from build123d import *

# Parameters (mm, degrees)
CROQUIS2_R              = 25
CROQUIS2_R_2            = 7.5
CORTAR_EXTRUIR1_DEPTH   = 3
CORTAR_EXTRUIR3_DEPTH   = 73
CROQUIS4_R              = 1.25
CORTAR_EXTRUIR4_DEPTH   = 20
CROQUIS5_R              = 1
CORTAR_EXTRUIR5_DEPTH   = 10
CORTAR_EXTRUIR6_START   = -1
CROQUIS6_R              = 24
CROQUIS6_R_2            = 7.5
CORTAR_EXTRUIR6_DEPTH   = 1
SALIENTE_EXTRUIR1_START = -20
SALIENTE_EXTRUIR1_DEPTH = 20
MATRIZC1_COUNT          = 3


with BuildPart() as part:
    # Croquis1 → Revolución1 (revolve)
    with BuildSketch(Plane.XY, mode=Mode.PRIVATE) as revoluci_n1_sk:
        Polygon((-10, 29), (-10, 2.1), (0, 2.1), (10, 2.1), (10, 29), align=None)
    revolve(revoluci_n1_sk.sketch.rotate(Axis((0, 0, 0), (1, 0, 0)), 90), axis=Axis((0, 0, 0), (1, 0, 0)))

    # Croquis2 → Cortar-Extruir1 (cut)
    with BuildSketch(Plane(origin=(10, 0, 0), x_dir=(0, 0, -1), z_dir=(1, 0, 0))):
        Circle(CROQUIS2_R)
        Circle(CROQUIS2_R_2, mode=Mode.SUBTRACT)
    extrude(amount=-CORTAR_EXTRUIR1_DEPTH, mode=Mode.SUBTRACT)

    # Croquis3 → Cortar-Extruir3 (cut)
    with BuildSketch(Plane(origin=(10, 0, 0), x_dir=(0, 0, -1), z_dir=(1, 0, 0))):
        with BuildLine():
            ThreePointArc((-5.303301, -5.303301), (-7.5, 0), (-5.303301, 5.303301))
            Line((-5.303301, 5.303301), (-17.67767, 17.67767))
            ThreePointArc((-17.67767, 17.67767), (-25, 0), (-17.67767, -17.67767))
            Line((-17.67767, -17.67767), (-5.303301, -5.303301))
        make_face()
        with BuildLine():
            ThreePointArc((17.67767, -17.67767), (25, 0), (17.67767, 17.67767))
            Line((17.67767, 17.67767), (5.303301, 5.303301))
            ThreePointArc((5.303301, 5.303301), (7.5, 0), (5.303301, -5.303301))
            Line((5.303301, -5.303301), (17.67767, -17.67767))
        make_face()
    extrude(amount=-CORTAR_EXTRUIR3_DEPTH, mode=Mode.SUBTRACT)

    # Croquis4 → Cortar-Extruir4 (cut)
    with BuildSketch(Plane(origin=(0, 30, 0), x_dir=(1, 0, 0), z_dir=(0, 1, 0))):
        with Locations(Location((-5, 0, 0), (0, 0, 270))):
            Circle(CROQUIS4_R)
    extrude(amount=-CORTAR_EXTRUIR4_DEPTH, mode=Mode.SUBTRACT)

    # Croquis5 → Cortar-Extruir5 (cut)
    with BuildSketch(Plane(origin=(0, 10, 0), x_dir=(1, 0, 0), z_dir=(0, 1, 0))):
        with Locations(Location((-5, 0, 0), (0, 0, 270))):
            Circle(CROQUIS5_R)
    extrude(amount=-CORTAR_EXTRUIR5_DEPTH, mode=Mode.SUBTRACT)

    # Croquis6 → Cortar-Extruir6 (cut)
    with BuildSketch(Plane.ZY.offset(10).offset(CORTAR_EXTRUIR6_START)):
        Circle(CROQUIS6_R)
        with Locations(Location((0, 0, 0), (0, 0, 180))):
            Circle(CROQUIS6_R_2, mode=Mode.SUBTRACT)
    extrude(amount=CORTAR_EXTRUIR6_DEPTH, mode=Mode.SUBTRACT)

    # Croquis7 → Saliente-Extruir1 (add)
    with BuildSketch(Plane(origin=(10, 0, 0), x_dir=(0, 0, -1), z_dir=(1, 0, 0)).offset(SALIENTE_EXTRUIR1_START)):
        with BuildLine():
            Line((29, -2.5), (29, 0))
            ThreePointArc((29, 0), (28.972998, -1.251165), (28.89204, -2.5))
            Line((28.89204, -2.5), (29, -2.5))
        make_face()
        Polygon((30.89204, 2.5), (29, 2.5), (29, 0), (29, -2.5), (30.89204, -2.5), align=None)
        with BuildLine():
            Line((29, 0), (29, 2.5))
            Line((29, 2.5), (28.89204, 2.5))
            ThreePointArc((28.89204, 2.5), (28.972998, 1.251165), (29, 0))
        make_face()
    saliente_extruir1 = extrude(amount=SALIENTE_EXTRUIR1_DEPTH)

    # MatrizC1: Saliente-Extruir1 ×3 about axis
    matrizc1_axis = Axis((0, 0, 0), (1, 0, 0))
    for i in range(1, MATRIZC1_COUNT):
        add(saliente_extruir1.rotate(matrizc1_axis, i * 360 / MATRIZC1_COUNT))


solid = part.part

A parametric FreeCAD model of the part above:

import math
import FreeCAD as App
import Part
import Sketcher


def add_polygon(sketch, points):
    """Adds a closed chain of lines whose ends are joined by coincident constraints."""
    first, n = sketch.GeometryCount, len(points)
    for a, b in zip(points, points[1:] + points[:1]):
        sketch.addGeometry(Part.LineSegment(App.Vector(*a, 0), App.Vector(*b, 0)), False)
    for i in range(n):
        sketch.addConstraint(Sketcher.Constraint("Coincident", first + i, 2, first + (i + 1) % n, 1))

doc = App.newDocument("Part")
params = doc.addObject("Spreadsheet::Sheet", "Params")
for row, (alias, value) in enumerate([
    ("sketch1_width", "20 mm"),
    ("sketch1_height", "26.9 mm"),
    ("revolution_angle", "360 deg"),
    ("sketch2_diameter", "50 mm"),
    ("sketch2_diameter2", "15 mm"),
    ("pocket1_length", "3 mm"),
    ("sketch3_radius", "7.500001 mm"),
    ("sketch3_length", "17.5 mm"),
    ("pocket2_length", "73 mm"),
    ("sketch4_diameter", "2.5 mm"),
    ("pocket3_length", "20 mm"),
    ("sketch5_diameter", "2 mm"),
    ("pocket4_length", "10 mm"),
    ("sketch6_diameter", "48 mm"),
    ("sketch6_diameter2", "15 mm"),
    ("pocket5_length", "1 mm"),
    ("sketch7_width", "5 mm"),
    ("sketch7_height", "2 mm"),
    ("sketch7_height2", "2 mm"),
    ("pad1_length", "20 mm"),
], start=1):
    params.set(f"A{row}", alias)
    params.set(f"B{row}", "=" + value)
    params.setAlias(f"B{row}", alias)

body = doc.addObject("PartDesign::Body", "Body")

sketch1 = body.newObject("Sketcher::SketchObject", "Sketch")
sketch1.AttachmentSupport = (doc.getObject("XY_Plane"), [""])
sketch1.MapMode = "FlatFace"
add_polygon(sketch1, [(-10, 29), (-10, 2), (10, 2), (10, 29)])
sketch1.addConstraint(Sketcher.Constraint("Vertical", 0))
sketch1.addConstraint(Sketcher.Constraint("Horizontal", 1))
sketch1.addConstraint(Sketcher.Constraint("Vertical", 2))
sketch1.addConstraint(Sketcher.Constraint("Horizontal", 3))
sketch1.addConstraint(Sketcher.Constraint("DistanceX", 1, 1, 1, 2, 20.0))
sketch1.addConstraint(Sketcher.Constraint("DistanceY", 0, 2, 0, 1, 26.9))
sketch1.addConstraint(Sketcher.Constraint("DistanceX", 0, 2, -1, 1, 10.0))
sketch1.addConstraint(Sketcher.Constraint("DistanceY", -1, 1, 2, 2, 29.0))
sketch1.setExpression("Constraints[8]", "Params.sketch1_width")
sketch1.setExpression("Constraints[9]", "Params.sketch1_height")
revolution = body.newObject("PartDesign::Revolution", "Revolution")
revolution.Profile = sketch1
revolution.ReferenceAxis = (sketch1, ["H_Axis"])
revolution.setExpression("Angle", "Params.revolution_angle")

sketch2 = body.newObject("Sketcher::SketchObject", "Sketch001")
sketch2.AttachmentSupport = (doc.getObject("YZ_Plane"), [""])
sketch2.MapMode = "FlatFace"
sketch2.AttachmentOffset = App.Placement(App.Vector(0, 0, 10), App.Rotation())
sketch2.addGeometry(Part.Circle(App.Vector(0, 0, 0), App.Vector(0, 0, 1), 25), False)
sketch2.addGeometry(Part.Circle(App.Vector(0, 0, 0), App.Vector(0, 0, 1), 8), False)
sketch2.addConstraint(Sketcher.Constraint("Coincident", 0, 3, -1, 1))
sketch2.addConstraint(Sketcher.Constraint("Coincident", 1, 3, -1, 1))
sketch2.addConstraint(Sketcher.Constraint("Diameter", 0, 50.0))
sketch2.addConstraint(Sketcher.Constraint("Diameter", 1, 15.0))
sketch2.setExpression("Constraints[2]", "Params.sketch2_diameter")
sketch2.setExpression("Constraints[3]", "Params.sketch2_diameter2")
pocket1 = body.newObject("PartDesign::Pocket", "Pocket")
pocket1.Profile = sketch2
pocket1.setExpression("Length", "Params.pocket1_length")

sketch3 = body.newObject("Sketcher::SketchObject", "Sketch002")
sketch3.AttachmentSupport = (doc.getObject("YZ_Plane"), [""])
sketch3.MapMode = "FlatFace"
sketch3.AttachmentOffset = App.Placement(App.Vector(0, 0, 10), App.Rotation())
sketch3.addGeometry(Part.ArcOfCircle(Part.Circle(App.Vector(0, 0, 0), App.Vector(0, 0, 1), 8), math.radians(45), math.radians(135)), False)
sketch3.addGeometry(Part.LineSegment(App.Vector(5, 5, 0), App.Vector(18, 18, 0)), False)
sketch3.addGeometry(Part.ArcOfCircle(Part.Circle(App.Vector(0, 0, 0), App.Vector(0, 0, 1), 25), math.radians(45), math.radians(135)), False)
sketch3.addGeometry(Part.LineSegment(App.Vector(-18, 18, 0), App.Vector(-5, 5, 0)), False)
sketch3.addGeometry(Part.ArcOfCircle(Part.Circle(App.Vector(0, 0, 0), App.Vector(0, 0, 1), 25), math.radians(-135), math.radians(-45)), False)
sketch3.addGeometry(Part.LineSegment(App.Vector(18, -18, 0), App.Vector(5, -5, 0)), False)
sketch3.addGeometry(Part.ArcOfCircle(Part.Circle(App.Vector(0, 0, 0), App.Vector(0, 0, 1), 8), math.radians(-135), math.radians(-45)), False)
sketch3.addGeometry(Part.LineSegment(App.Vector(-5, -5, 0), App.Vector(-18, -18, 0)), False)
sketch3.addConstraint(Sketcher.Constraint("Coincident", 0, 1, 1, 1))
sketch3.addConstraint(Sketcher.Constraint("Coincident", 1, 2, 2, 1))
sketch3.addConstraint(Sketcher.Constraint("Coincident", 2, 2, 3, 1))
sketch3.addConstraint(Sketcher.Constraint("Coincident", 3, 2, 0, 2))
sketch3.addConstraint(Sketcher.Constraint("Coincident", 4, 2, 5, 1))
sketch3.addConstraint(Sketcher.Constraint("Coincident", 5, 2, 6, 2))
sketch3.addConstraint(Sketcher.Constraint("Coincident", 6, 1, 7, 1))
sketch3.addConstraint(Sketcher.Constraint("Coincident", 7, 2, 4, 1))
sketch3.addConstraint(Sketcher.Constraint("Coincident", 0, 3, -1, 1))
sketch3.addConstraint(Sketcher.Constraint("Coincident", 2, 3, -1, 1))
sketch3.addConstraint(Sketcher.Constraint("Coincident", 4, 3, -1, 1))
sketch3.addConstraint(Sketcher.Constraint("Coincident", 6, 3, -1, 1))
sketch3.addConstraint(Sketcher.Constraint("Equal", 2, 4))
sketch3.addConstraint(Sketcher.Constraint("Equal", 0, 6))
sketch3.addConstraint(Sketcher.Constraint("Perpendicular", 1, 3))
sketch3.addConstraint(Sketcher.Constraint("Parallel", 3, 5))
sketch3.addConstraint(Sketcher.Constraint("Perpendicular", 5, 7))
sketch3.addConstraint(Sketcher.Constraint("Horizontal", 1, 2, 2, 2))
sketch3.addConstraint(Sketcher.Constraint("Horizontal", 0, 1, 3, 2))
sketch3.addConstraint(Sketcher.Constraint("Horizontal", 5, 2, 6, 1))
sketch3.addConstraint(Sketcher.Constraint("Vertical", 1, 2, 4, 2))
sketch3.addConstraint(Sketcher.Constraint("Radius", 0, 7.500001))
sketch3.addConstraint(Sketcher.Constraint("Distance", 1, 17.5))
sketch3.addConstraint(Sketcher.Constraint("DistanceX", -1, 1, 0, 1, 5.303301))
sketch3.setExpression("Constraints[21]", "Params.sketch3_radius")
sketch3.setExpression("Constraints[22]", "Params.sketch3_length")
pocket2 = body.newObject("PartDesign::Pocket", "Pocket001")
pocket2.Profile = sketch3
pocket2.setExpression("Length", "Params.pocket2_length")

sketch4 = body.newObject("Sketcher::SketchObject", "Sketch003")
sketch4.AttachmentSupport = (doc.getObject("XZ_Plane"), [""])
sketch4.MapMode = "FlatFace"
sketch4.AttachmentOffset = App.Placement(App.Vector(0, 0, -30), App.Rotation())
sketch4.addGeometry(Part.Circle(App.Vector(-5, 0, 0), App.Vector(0, 0, 1), 1.2), False)
sketch4.addConstraint(Sketcher.Constraint("PointOnObject", 0, 3, -1))
sketch4.addConstraint(Sketcher.Constraint("Diameter", 0, 2.5))
sketch4.addConstraint(Sketcher.Constraint("DistanceX", 0, 3, -1, 1, 5.0))
sketch4.setExpression("Constraints[1]", "Params.sketch4_diameter")
pocket3 = body.newObject("PartDesign::Pocket", "Pocket002")
pocket3.Profile = sketch4
pocket3.setExpression("Length", "Params.pocket3_length")
pocket3.Reversed = True

sketch5 = body.newObject("Sketcher::SketchObject", "Sketch004")
sketch5.AttachmentSupport = (doc.getObject("XZ_Plane"), [""])
sketch5.MapMode = "FlatFace"
sketch5.AttachmentOffset = App.Placement(App.Vector(0, 0, -10), App.Rotation())
sketch5.addGeometry(Part.Circle(App.Vector(-5, 0, 0), App.Vector(0, 0, 1), 1), False)
sketch5.addConstraint(Sketcher.Constraint("PointOnObject", 0, 3, -1))
sketch5.addConstraint(Sketcher.Constraint("Diameter", 0, 2.0))
sketch5.addConstraint(Sketcher.Constraint("DistanceX", 0, 3, -1, 1, 5.0))
sketch5.setExpression("Constraints[1]", "Params.sketch5_diameter")
pocket4 = body.newObject("PartDesign::Pocket", "Pocket003")
pocket4.Profile = sketch5
pocket4.setExpression("Length", "Params.pocket4_length")
pocket4.Reversed = True

sketch6 = body.newObject("Sketcher::SketchObject", "Sketch005")
sketch6.AttachmentSupport = (doc.getObject("YZ_Plane"), [""])
sketch6.MapMode = "FlatFace"
sketch6.AttachmentOffset = App.Placement(App.Vector(0, 0, -9), App.Rotation())
sketch6.addGeometry(Part.Circle(App.Vector(0, 0, 0), App.Vector(0, 0, 1), 24), False)
sketch6.addGeometry(Part.Circle(App.Vector(0, 0, 0), App.Vector(0, 0, 1), 8), False)
sketch6.addConstraint(Sketcher.Constraint("Coincident", 0, 3, -1, 1))
sketch6.addConstraint(Sketcher.Constraint("Coincident", 1, 3, -1, 1))
sketch6.addConstraint(Sketcher.Constraint("Diameter", 0, 48.0))
sketch6.addConstraint(Sketcher.Constraint("Diameter", 1, 15.0))
sketch6.setExpression("Constraints[2]", "Params.sketch6_diameter")
sketch6.setExpression("Constraints[3]", "Params.sketch6_diameter2")
pocket5 = body.newObject("PartDesign::Pocket", "Pocket004")
pocket5.Profile = sketch6
pocket5.setExpression("Length", "Params.pocket5_length")

sketch7 = body.newObject("Sketcher::SketchObject", "Sketch006")
sketch7.AttachmentSupport = (doc.getObject("YZ_Plane"), [""])
sketch7.MapMode = "FlatFace"
sketch7.AttachmentOffset = App.Placement(App.Vector(0, 0, -10), App.Rotation())
sketch7.addGeometry(Part.ArcOfCircle(Part.Circle(App.Vector(-0.000026, -0.000727, 0), App.Vector(0, 0, 1), 28.999273), math.radians(-94.945502), math.radians(-89.999948)), False)
sketch7.addGeometry(Part.LineSegment(App.Vector(-2.5, -28.89204, 0), App.Vector(-2.5, -30.89204, 0)), False)
sketch7.addGeometry(Part.LineSegment(App.Vector(-2.5, -30.89204, 0), App.Vector(2.5, -30.89204, 0)), False)
sketch7.addGeometry(Part.LineSegment(App.Vector(2.5, -30.89204, 0), App.Vector(2.5, -28.89204, 0)), False)
sketch7.addGeometry(Part.ArcOfCircle(Part.Circle(App.Vector(0.000026, -0.000727, 0), App.Vector(0, 0, 1), 28.999273), math.radians(-90.000052), math.radians(-85.054498)), False)
sketch7.addConstraint(Sketcher.Constraint("Coincident", 0, 1, 1, 1))
sketch7.addConstraint(Sketcher.Constraint("Coincident", 1, 2, 2, 1))
sketch7.addConstraint(Sketcher.Constraint("Coincident", 2, 2, 3, 1))
sketch7.addConstraint(Sketcher.Constraint("Coincident", 3, 2, 4, 2))
sketch7.addConstraint(Sketcher.Constraint("Coincident", 4, 1, 0, 2))
sketch7.addConstraint(Sketcher.Constraint("Vertical", 1))
sketch7.addConstraint(Sketcher.Constraint("Horizontal", 2))
sketch7.addConstraint(Sketcher.Constraint("Vertical", 3))
sketch7.addConstraint(Sketcher.Constraint("PointOnObject", 4, 1, -2))
sketch7.addConstraint(Sketcher.Constraint("DistanceX", 2, 1, 2, 2, 5.0))
sketch7.addConstraint(Sketcher.Constraint("DistanceY", 1, 2, 1, 1, 2.0))
sketch7.addConstraint(Sketcher.Constraint("DistanceY", 3, 1, 3, 2, 2.0))
sketch7.addConstraint(Sketcher.Constraint("DistanceY", 4, 1, -1, 1, 29.0))
sketch7.addConstraint(Sketcher.Constraint("DistanceX", 0, 1, -1, 1, 2.5))
sketch7.addConstraint(Sketcher.Constraint("Radius", 0, 28.999273))
sketch7.addConstraint(Sketcher.Constraint("Radius", 4, 28.999273))
sketch7.addConstraint(Sketcher.Constraint("DistanceY", 0, 1, -1, 1, 28.89204))
sketch7.setExpression("Constraints[9]", "Params.sketch7_width")
sketch7.setExpression("Constraints[10]", "Params.sketch7_height")
sketch7.setExpression("Constraints[11]", "Params.sketch7_height2")
pad1 = body.newObject("PartDesign::Pad", "Pad")
pad1.Profile = sketch7
pad1.setExpression("Length", "Params.pad1_length")
doc.recompute()

polarpattern = body.newObject("PartDesign::PolarPattern", "PolarPattern")
polarpattern.Originals = [pad1]
polarpattern.Axis = (doc.getObject("X_Axis"), [""])
polarpattern.Angle = 360
polarpattern.Occurrences = 3
body.Tip = polarpattern

doc.recompute()
